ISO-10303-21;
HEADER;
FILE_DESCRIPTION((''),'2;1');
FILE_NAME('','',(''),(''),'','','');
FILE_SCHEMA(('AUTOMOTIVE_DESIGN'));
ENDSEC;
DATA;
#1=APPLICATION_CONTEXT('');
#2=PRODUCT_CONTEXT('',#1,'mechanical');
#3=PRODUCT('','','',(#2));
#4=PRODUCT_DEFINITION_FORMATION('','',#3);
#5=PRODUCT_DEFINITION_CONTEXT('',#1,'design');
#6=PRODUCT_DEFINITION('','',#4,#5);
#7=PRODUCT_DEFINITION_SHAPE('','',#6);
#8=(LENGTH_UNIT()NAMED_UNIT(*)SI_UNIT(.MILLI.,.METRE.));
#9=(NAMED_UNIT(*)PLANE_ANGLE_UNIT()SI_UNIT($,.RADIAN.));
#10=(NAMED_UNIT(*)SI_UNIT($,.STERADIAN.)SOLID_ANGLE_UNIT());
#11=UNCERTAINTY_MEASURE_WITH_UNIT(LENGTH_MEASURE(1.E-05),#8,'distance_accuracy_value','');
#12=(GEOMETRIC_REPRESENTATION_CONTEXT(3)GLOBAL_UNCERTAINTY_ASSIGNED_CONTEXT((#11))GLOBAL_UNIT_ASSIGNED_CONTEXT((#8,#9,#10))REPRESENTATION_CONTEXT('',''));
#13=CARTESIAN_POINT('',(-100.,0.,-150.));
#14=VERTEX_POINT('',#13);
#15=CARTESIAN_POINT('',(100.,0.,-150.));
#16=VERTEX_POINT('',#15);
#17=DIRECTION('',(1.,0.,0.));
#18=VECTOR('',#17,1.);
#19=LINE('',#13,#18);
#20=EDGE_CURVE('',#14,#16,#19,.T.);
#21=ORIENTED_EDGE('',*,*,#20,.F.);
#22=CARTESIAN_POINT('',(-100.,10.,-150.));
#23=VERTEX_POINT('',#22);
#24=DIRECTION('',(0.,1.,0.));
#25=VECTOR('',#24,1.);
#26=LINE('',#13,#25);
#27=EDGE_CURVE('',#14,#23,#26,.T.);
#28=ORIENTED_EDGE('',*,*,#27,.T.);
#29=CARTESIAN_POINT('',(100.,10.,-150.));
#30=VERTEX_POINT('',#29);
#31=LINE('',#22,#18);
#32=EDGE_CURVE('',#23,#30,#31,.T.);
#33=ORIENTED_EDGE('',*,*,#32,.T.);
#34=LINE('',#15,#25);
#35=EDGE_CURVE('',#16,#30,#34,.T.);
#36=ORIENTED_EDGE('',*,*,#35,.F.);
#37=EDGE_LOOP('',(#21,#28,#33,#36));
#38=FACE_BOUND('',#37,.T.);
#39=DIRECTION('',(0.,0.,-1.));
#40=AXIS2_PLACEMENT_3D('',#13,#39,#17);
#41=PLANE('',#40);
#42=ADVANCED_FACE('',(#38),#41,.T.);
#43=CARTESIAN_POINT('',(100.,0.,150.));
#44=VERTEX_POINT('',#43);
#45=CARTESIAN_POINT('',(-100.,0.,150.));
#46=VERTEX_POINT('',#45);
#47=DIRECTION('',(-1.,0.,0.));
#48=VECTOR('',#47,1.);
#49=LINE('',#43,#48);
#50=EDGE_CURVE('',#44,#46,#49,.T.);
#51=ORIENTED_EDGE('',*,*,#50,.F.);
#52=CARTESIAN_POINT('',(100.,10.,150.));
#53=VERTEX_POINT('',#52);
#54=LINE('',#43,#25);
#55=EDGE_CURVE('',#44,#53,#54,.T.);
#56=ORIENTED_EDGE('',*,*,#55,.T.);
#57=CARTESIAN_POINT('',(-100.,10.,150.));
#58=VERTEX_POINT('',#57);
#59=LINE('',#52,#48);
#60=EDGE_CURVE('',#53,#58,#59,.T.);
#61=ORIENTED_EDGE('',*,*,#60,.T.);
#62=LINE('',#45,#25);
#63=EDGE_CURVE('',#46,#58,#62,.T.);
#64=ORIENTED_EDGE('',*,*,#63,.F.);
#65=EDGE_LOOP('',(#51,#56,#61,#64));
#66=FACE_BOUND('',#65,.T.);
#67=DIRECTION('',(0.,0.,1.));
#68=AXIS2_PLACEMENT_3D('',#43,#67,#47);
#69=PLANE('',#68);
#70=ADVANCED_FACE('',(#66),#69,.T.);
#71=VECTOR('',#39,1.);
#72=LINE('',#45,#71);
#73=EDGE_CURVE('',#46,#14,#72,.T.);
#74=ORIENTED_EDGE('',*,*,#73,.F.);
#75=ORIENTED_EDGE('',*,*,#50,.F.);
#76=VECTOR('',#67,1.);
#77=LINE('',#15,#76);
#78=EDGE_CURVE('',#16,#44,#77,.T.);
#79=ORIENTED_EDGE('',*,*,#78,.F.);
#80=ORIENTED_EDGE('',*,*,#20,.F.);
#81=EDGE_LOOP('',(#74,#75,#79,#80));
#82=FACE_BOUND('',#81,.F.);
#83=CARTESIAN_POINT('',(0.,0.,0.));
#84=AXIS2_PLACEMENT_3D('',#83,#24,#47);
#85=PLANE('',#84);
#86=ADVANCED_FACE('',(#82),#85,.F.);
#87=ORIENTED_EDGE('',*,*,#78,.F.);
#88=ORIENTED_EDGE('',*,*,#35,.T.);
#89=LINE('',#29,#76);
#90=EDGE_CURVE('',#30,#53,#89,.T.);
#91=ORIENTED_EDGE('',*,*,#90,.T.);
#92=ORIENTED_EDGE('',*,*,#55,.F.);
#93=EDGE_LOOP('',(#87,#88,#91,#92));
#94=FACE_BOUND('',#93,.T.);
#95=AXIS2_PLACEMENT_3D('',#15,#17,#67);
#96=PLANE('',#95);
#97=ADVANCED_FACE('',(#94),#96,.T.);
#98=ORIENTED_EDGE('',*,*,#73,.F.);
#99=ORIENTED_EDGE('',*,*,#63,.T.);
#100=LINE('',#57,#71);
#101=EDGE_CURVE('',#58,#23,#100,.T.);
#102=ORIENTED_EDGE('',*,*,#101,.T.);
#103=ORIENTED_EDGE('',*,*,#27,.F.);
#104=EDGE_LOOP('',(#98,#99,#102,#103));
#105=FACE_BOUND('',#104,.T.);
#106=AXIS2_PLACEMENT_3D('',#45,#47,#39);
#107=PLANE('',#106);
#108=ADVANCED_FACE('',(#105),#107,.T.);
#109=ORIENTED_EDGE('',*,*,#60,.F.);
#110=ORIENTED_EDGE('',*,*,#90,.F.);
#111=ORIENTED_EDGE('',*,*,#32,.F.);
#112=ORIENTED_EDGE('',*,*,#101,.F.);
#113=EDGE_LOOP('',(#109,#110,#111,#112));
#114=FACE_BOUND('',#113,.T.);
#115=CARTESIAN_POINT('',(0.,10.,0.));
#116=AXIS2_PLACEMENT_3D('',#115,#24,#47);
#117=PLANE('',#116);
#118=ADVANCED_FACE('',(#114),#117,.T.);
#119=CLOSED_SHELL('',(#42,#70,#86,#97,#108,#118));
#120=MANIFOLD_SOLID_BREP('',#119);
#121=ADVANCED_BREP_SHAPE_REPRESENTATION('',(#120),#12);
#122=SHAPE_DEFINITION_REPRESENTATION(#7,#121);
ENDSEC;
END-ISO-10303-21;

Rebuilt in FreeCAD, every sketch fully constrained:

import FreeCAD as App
import Part
import Sketcher
from FreeCAD import Vector
Q = App.Units.Quantity


def add_polygon(sketch, points):
    """Adds a closed chain of lines whose ends are joined by coincident constraints."""
    first, n = sketch.GeometryCount, len(points)
    for a, b in zip(points, points[1:] + points[:1]):
        sketch.addGeometry(Part.LineSegment(App.Vector(*a, 0), App.Vector(*b, 0)), False)
    for i in range(n):
        sketch.addConstraint(Sketcher.Constraint("Coincident", first + i, 2, first + (i + 1) % n, 1))

doc = App.newDocument("Part")
params = doc.addObject("Spreadsheet::Sheet", "Params")
for row, (alias, value) in enumerate([
    ("sketch1_width", "200 mm"),
    ("sketch1_height", "300 mm"),
    ("pad1_length", "10 mm"),
], start=1):
    params.set(f"A{row}", alias)
    params.set(f"B{row}", "=" + value)
    params.setAlias(f"B{row}", alias)

body = doc.addObject("PartDesign::Body", "Body")

# Sketch on XZ plane
sketch1 = body.newObject("Sketcher::SketchObject", "Sketch")
sketch1.AttachmentSupport = (doc.getObject("XZ_Plane"), [""])
sketch1.MapMode = "FlatFace"
add_polygon(sketch1, [(-100, 150), (100, 150), (100, -150), (-100, -150)])  # lines 0-3
sketch1.addConstraint(Sketcher.Constraint("Horizontal", 0))
sketch1.addConstraint(Sketcher.Constraint("Vertical", 1))
sketch1.addConstraint(Sketcher.Constraint("Horizontal", 2))
sketch1.addConstraint(Sketcher.Constraint("Vertical", 3))
sketch1.addConstraint(Sketcher.Constraint("Symmetric", 0, 2, 2, 2, -1, 1))
sketch1.addConstraint(Sketcher.Constraint("DistanceX", 0, 1, 0, 2, Q("200 mm")))
sketch1.addConstraint(Sketcher.Constraint("DistanceY", 1, 2, 1, 1, Q("300 mm")))
sketch1.setExpression("Constraints[9]", "Params.sketch1_width")
sketch1.setExpression("Constraints[10]", "Params.sketch1_height")
pad1 = body.newObject("PartDesign::Pad", "Pad")
pad1.Profile = sketch1
pad1.setExpression("Length", "Params.pad1_length")
pad1.Reversed = True

doc.recompute()
